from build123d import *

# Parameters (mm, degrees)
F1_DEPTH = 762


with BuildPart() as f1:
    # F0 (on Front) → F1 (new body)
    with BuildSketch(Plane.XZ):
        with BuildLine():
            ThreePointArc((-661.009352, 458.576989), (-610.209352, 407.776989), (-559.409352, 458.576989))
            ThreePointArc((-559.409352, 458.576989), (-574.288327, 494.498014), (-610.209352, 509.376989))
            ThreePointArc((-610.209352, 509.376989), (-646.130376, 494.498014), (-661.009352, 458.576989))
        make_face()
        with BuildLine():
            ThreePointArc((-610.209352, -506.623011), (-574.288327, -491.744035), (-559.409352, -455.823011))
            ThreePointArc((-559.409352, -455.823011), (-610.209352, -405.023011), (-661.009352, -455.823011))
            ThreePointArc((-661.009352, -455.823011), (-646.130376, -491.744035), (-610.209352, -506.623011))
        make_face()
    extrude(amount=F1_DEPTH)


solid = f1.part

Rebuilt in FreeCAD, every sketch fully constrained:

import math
import FreeCAD as App
import Part
import Sketcher
from FreeCAD import Vector
Q = App.Units.Quantity

doc = App.newDocument("Part")
params = doc.addObject("Spreadsheet::Sheet", "Params")
for row, (alias, value) in enumerate([
    ("sketch1_radius", "2 in"),
    ("pad1_length", "30 in"),
], start=1):
    params.set(f"A{row}", alias)
    params.set(f"B{row}", "=" + value)
    params.setAlias(f"B{row}", alias)

body = doc.addObject("PartDesign::Body", "Body")
body.AllowCompound = True

sketch1 = body.newObject("Sketcher::SketchObject", "Sketch")
sketch1.AttachmentSupport = (doc.getObject("XZ_Plane"), [""])
sketch1.MapMode = "FlatFace"
sketch1.addGeometry([
    Part.ArcOfCircle(Part.Circle(Vector(-610, 459, 0), Vector(0, 0, 1), 51), math.radians(180), math.radians(360)),
    Part.ArcOfCircle(Part.Circle(Vector(-610, 459, 0), Vector(0, 0, 1), 51), math.radians(0), math.radians(90)),
    Part.ArcOfCircle(Part.Circle(Vector(-610, 459, 0), Vector(0, 0, 1), 51), math.radians(90), math.radians(180)),
    Part.ArcOfCircle(Part.Circle(Vector(-610, -456, 0), Vector(0, 0, 1), 51), math.radians(-90), math.radians(0)),
    Part.ArcOfCircle(Part.Circle(Vector(-610, -456, 0), Vector(0, 0, 1), 51), math.radians(0), math.radians(180)),
    Part.ArcOfCircle(Part.Circle(Vector(-610, -456, 0), Vector(0, 0, 1), 51), math.radians(-180), math.radians(-90)),
], False)
sketch1.addConstraint([
    Sketcher.Constraint("Tangent", 0, 2, 1, 1),
    Sketcher.Constraint("Tangent", 1, 2, 2, 1),
    Sketcher.Constraint("Tangent", 2, 2, 0, 1),
    Sketcher.Constraint("Tangent", 3, 2, 4, 1),
    Sketcher.Constraint("Tangent", 4, 2, 5, 1),
    Sketcher.Constraint("Tangent", 5, 2, 3, 1),
    Sketcher.Constraint("Equal", 2, 3),
    Sketcher.Constraint("Horizontal", 2, 3, 0, 2),
    Sketcher.Constraint("Horizontal", 0, 2, 2, 2),
    Sketcher.Constraint("Horizontal", 5, 3, 3, 2),
    Sketcher.Constraint("Horizontal", 3, 2, 4, 2),
    Sketcher.Constraint("Vertical", 2, 3, 3, 3),
    Sketcher.Constraint("Vertical", 5, 3, 1, 2),
    Sketcher.Constraint("Vertical", 1, 2, 5, 2),
    Sketcher.Constraint("Radius", 0, Q("2 in")),
    Sketcher.Constraint("DistanceY", 3, 3, 0, 3, Q("36 in")),
    Sketcher.Constraint("DistanceX", 0, 3, -1, 1, Q("610.209352 mm")),
    Sketcher.Constraint("DistanceY", -1, 1, 0, 3, Q("458.576989 mm")),
])
sketch1.setExpression("Constraints[14]", "Params.sketch1_radius")
pad1 = body.newObject("PartDesign::Pad", "Pad")
pad1.Profile = sketch1
pad1.setExpression("Length", "Params.pad1_length")

doc.recompute()
